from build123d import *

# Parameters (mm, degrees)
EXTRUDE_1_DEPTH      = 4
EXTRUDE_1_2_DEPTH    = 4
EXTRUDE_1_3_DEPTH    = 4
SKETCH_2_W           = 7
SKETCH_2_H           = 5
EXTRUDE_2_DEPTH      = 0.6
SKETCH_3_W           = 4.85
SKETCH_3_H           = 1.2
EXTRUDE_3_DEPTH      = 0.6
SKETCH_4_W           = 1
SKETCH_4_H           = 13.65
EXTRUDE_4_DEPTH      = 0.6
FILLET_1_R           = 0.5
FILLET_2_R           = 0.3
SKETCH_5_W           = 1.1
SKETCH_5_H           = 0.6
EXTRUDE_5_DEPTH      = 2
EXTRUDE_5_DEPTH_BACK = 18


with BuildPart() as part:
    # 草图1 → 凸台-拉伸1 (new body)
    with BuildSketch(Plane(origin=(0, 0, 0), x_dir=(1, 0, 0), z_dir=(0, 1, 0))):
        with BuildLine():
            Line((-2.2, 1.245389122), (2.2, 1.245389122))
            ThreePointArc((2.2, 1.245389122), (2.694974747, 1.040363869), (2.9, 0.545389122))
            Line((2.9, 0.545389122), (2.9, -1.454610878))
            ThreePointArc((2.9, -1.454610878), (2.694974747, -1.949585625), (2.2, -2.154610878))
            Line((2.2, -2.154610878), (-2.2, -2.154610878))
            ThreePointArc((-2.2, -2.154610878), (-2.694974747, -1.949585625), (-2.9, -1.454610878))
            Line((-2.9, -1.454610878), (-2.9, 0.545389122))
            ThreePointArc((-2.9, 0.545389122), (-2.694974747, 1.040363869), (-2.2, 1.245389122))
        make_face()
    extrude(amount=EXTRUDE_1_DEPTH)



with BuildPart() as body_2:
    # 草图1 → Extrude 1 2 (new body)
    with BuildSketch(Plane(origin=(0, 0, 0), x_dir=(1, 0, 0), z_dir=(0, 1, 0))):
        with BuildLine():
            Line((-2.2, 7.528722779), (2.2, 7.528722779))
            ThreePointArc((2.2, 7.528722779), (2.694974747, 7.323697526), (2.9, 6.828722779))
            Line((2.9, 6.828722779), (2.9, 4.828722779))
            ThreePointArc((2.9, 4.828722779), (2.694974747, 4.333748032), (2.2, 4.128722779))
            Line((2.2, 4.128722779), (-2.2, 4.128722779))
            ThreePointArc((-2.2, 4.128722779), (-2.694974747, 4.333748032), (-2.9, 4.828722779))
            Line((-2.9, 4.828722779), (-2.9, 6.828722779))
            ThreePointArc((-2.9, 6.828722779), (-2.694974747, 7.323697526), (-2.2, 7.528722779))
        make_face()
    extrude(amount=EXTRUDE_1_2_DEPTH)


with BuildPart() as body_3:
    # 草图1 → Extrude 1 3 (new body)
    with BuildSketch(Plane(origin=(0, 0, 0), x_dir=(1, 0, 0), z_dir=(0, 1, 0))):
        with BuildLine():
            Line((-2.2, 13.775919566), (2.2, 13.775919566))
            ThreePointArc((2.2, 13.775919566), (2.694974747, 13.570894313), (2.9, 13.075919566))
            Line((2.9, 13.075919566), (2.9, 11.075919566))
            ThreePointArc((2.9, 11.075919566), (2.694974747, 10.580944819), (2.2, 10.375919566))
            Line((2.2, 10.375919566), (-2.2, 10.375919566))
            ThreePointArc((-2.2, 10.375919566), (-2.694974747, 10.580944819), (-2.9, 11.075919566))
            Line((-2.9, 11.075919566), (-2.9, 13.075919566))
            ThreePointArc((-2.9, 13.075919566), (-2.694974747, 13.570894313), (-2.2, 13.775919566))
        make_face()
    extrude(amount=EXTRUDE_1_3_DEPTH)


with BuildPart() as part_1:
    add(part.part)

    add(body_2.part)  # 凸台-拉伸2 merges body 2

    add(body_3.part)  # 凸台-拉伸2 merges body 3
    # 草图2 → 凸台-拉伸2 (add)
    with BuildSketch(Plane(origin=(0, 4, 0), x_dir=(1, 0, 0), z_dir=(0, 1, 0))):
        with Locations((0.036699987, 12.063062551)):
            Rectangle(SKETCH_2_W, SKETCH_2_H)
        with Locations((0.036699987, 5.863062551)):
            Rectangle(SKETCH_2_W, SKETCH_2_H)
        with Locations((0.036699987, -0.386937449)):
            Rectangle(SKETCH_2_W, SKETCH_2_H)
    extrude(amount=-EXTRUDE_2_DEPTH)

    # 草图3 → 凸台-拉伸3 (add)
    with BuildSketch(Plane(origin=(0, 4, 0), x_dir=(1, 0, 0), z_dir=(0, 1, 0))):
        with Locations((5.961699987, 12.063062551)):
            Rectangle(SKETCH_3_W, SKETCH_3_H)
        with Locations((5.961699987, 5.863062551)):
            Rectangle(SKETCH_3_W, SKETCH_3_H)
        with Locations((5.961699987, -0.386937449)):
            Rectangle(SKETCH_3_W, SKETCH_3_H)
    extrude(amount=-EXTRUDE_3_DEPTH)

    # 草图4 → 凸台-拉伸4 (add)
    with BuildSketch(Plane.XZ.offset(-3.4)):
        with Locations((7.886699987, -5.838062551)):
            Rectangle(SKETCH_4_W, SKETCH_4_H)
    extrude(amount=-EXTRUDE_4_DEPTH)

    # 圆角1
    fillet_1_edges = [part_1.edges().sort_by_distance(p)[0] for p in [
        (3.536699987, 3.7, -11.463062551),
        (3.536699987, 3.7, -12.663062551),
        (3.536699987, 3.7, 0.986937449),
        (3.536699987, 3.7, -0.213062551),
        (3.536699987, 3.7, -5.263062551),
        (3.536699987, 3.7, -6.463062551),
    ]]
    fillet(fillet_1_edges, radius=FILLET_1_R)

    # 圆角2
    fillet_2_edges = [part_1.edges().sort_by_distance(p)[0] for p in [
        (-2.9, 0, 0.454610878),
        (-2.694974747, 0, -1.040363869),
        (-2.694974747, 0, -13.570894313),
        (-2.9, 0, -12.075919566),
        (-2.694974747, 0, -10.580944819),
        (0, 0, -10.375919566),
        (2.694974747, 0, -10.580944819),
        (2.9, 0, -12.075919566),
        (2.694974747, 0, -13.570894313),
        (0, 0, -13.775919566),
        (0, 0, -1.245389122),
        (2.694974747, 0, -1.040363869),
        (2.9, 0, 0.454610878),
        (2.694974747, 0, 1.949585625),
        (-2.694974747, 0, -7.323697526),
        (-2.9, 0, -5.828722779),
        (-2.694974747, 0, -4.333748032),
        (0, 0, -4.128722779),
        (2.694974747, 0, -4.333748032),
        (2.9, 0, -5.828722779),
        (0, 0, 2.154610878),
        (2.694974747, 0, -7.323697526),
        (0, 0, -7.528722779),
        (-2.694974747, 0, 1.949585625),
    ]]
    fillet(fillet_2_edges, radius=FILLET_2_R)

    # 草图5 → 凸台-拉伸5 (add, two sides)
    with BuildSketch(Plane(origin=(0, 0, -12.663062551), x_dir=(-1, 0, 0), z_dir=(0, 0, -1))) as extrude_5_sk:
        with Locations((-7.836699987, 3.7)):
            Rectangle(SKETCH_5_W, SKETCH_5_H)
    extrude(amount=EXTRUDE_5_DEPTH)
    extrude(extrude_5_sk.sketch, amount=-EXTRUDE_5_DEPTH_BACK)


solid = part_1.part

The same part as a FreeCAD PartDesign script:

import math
import FreeCAD as App
import Part
import Sketcher

V = App.Vector


def edges_at(feature, points):
    """Names of the edges that pass closest to the given points."""
    edges = feature.Shape.Edges
    near = lambda p: min(range(len(edges)), key=lambda i: edges[i].distToShape(Part.Vertex(*p))[0])
    return sorted({f"Edge{near(p) + 1}" for p in points})


def add_polygon(sketch, points):
    """Adds a closed chain of lines whose ends are joined by coincident constraints."""
    first, n = sketch.GeometryCount, len(points)
    for a, b in zip(points, points[1:] + points[:1]):
        sketch.addGeometry(Part.LineSegment(App.Vector(*a, 0), App.Vector(*b, 0)), False)
    for i in range(n):
        sketch.addConstraint(Sketcher.Constraint("Coincident", first + i, 2, first + (i + 1) % n, 1))

doc = App.newDocument("Part")
body = doc.addObject("PartDesign::Body", "Body")

# Sketch on XZ plane
sketch1 = body.newObject("Sketcher::SketchObject", "Sketch")
sketch1.AttachmentSupport = (doc.getObject("XZ_Plane"), [""])
sketch1.MapMode = "FlatFace"
sketch1.addGeometry([
    Part.LineSegment(V(2.2, -1.2, 0), V(-2.2, -1.2, 0)),  # 0
    Part.ArcOfCircle(Part.Circle(V(-2.2, -0.5, 0), V(0, 0, 1), 0.7), math.radians(180), math.radians(270)),  # 1
    Part.LineSegment(V(-2.9, -0.5, 0), V(-2.9, 1.5, 0)),  # 2
    Part.ArcOfCircle(Part.Circle(V(-2.2, 1.5, 0), V(0, 0, 1), 0.7), math.radians(90), math.radians(180)),  # 3
    Part.LineSegment(V(-2.2, 2.2, 0), V(2.2, 2.2, 0)),  # 4
    Part.ArcOfCircle(Part.Circle(V(2.2, 1.5, 0), V(0, 0, 1), 0.7), math.radians(0), math.radians(90)),  # 5
    Part.LineSegment(V(2.9, 1.5, 0), V(2.9, -0.5, 0)),  # 6
    Part.ArcOfCircle(Part.Circle(V(2.2, -0.5, 0), V(0, 0, 1), 0.7), math.radians(-90), math.radians(0)),  # 7
], False)
sketch1.addConstraint([
    Sketcher.Constraint("Tangent", 0, 2, 1, 2),
    Sketcher.Constraint("Tangent", 1, 1, 2, 1),
    Sketcher.Constraint("Tangent", 2, 2, 3, 2),
    Sketcher.Constraint("Tangent", 3, 1, 4, 1),
    Sketcher.Constraint("Tangent", 4, 2, 5, 2),
    Sketcher.Constraint("Tangent", 5, 1, 6, 1),
    Sketcher.Constraint("Tangent", 6, 2, 7, 2),
    Sketcher.Constraint("Tangent", 7, 1, 0, 1),
    Sketcher.Constraint("Horizontal", 0),
    Sketcher.Constraint("Vertical", 2),
    Sketcher.Constraint("Horizontal", 4),
    Sketcher.Constraint("Vertical", 6),
    Sketcher.Constraint("Equal", 1, 3),
    Sketcher.Constraint("Equal", 3, 5),
    Sketcher.Constraint("Equal", 5, 7),
    Sketcher.Constraint("Radius", 1, 0.7),
    Sketcher.Constraint("DistanceY", 2, 1, 2, 2, 2.0),
    Sketcher.Constraint("DistanceX", 0, 2, 0, 1, 4.4),
    Sketcher.Constraint("DistanceX", 1, 3, -1, 1, 2.2),
    Sketcher.Constraint("DistanceY", 1, 3, -1, 1, 0.545389),
])
pad1 = body.newObject("PartDesign::Pad", "Pad")
pad1.Profile = sketch1
pad1.Length = 4
pad1.Reversed = True
body2 = doc.addObject("PartDesign::Body", "Body001")

# Sketch on XZ plane
sketch2 = body2.newObject("Sketcher::SketchObject", "Sketch001")
sketch2.AttachmentSupport = (doc.getObject("XZ_Plane001"), [""])
sketch2.MapMode = "FlatFace"
sketch2.addGeometry([
    Part.LineSegment(V(2.2, -7.5, 0), V(-2.2, -7.5, 0)),  # 0
    Part.ArcOfCircle(Part.Circle(V(-2.2, -6.8, 0), V(0, 0, 1), 0.7), math.radians(180), math.radians(270)),  # 1
    Part.LineSegment(V(-2.9, -6.8, 0), V(-2.9, -4.8, 0)),  # 2
    Part.ArcOfCircle(Part.Circle(V(-2.2, -4.8, 0), V(0, 0, 1), 0.7), math.radians(90), math.radians(180)),  # 3
    Part.LineSegment(V(-2.2, -4.1, 0), V(2.2, -4.1, 0)),  # 4
    Part.ArcOfCircle(Part.Circle(V(2.2, -4.8, 0), V(0, 0, 1), 0.7), math.radians(0), math.radians(90)),  # 5
    Part.LineSegment(V(2.9, -4.8, 0), V(2.9, -6.8, 0)),  # 6
    Part.ArcOfCircle(Part.Circle(V(2.2, -6.8, 0), V(0, 0, 1), 0.7), math.radians(-90), math.radians(0)),  # 7
], False)
sketch2.addConstraint([
    Sketcher.Constraint("Tangent", 0, 2, 1, 2),
    Sketcher.Constraint("Tangent", 1, 1, 2, 1),
    Sketcher.Constraint("Tangent", 2, 2, 3, 2),
    Sketcher.Constraint("Tangent", 3, 1, 4, 1),
    Sketcher.Constraint("Tangent", 4, 2, 5, 2),
    Sketcher.Constraint("Tangent", 5, 1, 6, 1),
    Sketcher.Constraint("Tangent", 6, 2, 7, 2),
    Sketcher.Constraint("Tangent", 7, 1, 0, 1),
    Sketcher.Constraint("Horizontal", 0),
    Sketcher.Constraint("Vertical", 2),
    Sketcher.Constraint("Horizontal", 4),
    Sketcher.Constraint("Vertical", 6),
    Sketcher.Constraint("Equal", 1, 3),
    Sketcher.Constraint("Equal", 3, 5),
    Sketcher.Constraint("Equal", 5, 7),
    Sketcher.Constraint("Radius", 1, 0.7),
    Sketcher.Constraint("DistanceY", 2, 1, 2, 2, 2.0),
    Sketcher.Constraint("DistanceX", 0, 2, 0, 1, 4.4),
    Sketcher.Constraint("DistanceX", 1, 3, -1, 1, 2.2),
    Sketcher.Constraint("DistanceY", 1, 3, -1, 1, 6.828723),
])
pad2 = body2.newObject("PartDesign::Pad", "Pad001")
pad2.Profile = sketch2
pad2.Length = 4
pad2.Reversed = True
body3 = doc.addObject("PartDesign::Body", "Body002")

# Sketch on XZ plane
sketch3 = body3.newObject("Sketcher::SketchObject", "Sketch002")
sketch3.AttachmentSupport = (doc.getObject("XZ_Plane002"), [""])
sketch3.MapMode = "FlatFace"
sketch3.addGeometry([
    Part.LineSegment(V(2.2, -13.8, 0), V(-2.2, -13.8, 0)),  # 0
    Part.ArcOfCircle(Part.Circle(V(-2.2, -13.1, 0), V(0, 0, 1), 0.7), math.radians(180), math.radians(270)),  # 1
    Part.LineSegment(V(-2.9, -13.1, 0), V(-2.9, -11.1, 0)),  # 2
    Part.ArcOfCircle(Part.Circle(V(-2.2, -11.1, 0), V(0, 0, 1), 0.7), math.radians(90), math.radians(180)),  # 3
    Part.LineSegment(V(-2.2, -10.4, 0), V(2.2, -10.4, 0)),  # 4
    Part.ArcOfCircle(Part.Circle(V(2.2, -11.1, 0), V(0, 0, 1), 0.7), math.radians(0), math.radians(90)),  # 5
    Part.LineSegment(V(2.9, -11.1, 0), V(2.9, -13.1, 0)),  # 6
    Part.ArcOfCircle(Part.Circle(V(2.2, -13.1, 0), V(0, 0, 1), 0.7), math.radians(-90), math.radians(0)),  # 7
], False)
sketch3.addConstraint([
    Sketcher.Constraint("Tangent", 0, 2, 1, 2),
    Sketcher.Constraint("Tangent", 1, 1, 2, 1),
    Sketcher.Constraint("Tangent", 2, 2, 3, 2),
    Sketcher.Constraint("Tangent", 3, 1, 4, 1),
    Sketcher.Constraint("Tangent", 4, 2, 5, 2),
    Sketcher.Constraint("Tangent", 5, 1, 6, 1),
    Sketcher.Constraint("Tangent", 6, 2, 7, 2),
    Sketcher.Constraint("Tangent", 7, 1, 0, 1),
    Sketcher.Constraint("Horizontal", 0),
    Sketcher.Constraint("Vertical", 2),
    Sketcher.Constraint("Horizontal", 4),
    Sketcher.Constraint("Vertical", 6),
    Sketcher.Constraint("Equal", 1, 3),
    Sketcher.Constraint("Equal", 3, 5),
    Sketcher.Constraint("Equal", 5, 7),
    Sketcher.Constraint("Radius", 1, 0.7),
    Sketcher.Constraint("DistanceY", 2, 1, 2, 2, 2.0),
    Sketcher.Constraint("DistanceX", 0, 2, 0, 1, 4.4),
    Sketcher.Constraint("DistanceX", 1, 3, -1, 1, 2.2),
    Sketcher.Constraint("DistanceY", 1, 3, -1, 1, 13.07592),
])
pad3 = body3.newObject("PartDesign::Pad", "Pad002")
pad3.Profile = sketch3
pad3.Length = 4
pad3.Reversed = True
body.AllowCompound = True
doc.recompute()

boolean = body.newObject("PartDesign::Boolean", "Boolean")
boolean.Type = "Fuse"
boolean.addObjects([body2])
doc.recompute()

boolean2 = body.newObject("PartDesign::Boolean", "Boolean001")
boolean2.Type = "Fuse"
boolean2.addObjects([body3])

# Sketch on XZ plane
sketch4 = body.newObject("Sketcher::SketchObject", "Sketch003")
sketch4.AttachmentSupport = (doc.getObject("XZ_Plane"), [""])
sketch4.MapMode = "FlatFace"
sketch4.AttachmentOffset = App.Placement(V(0, 0, -4), App.Rotation())
add_polygon(sketch4, [(-3, -15), (-3, -10), (4, -10), (4, -15)])  # lines 0-3
add_polygon(sketch4, [(-3, -8), (-3, -3), (4, -3), (4, -8)])  # lines 4-7
add_polygon(sketch4, [(-3, -2), (-3, 3), (4, 3), (4, -2)])  # lines 8-11
sketch4.addConstraint([
    Sketcher.Constraint("Vertical", 0),
    Sketcher.Constraint("Horizontal", 1),
    Sketcher.Constraint("Vertical", 2),
    Sketcher.Constraint("Horizontal", 3),
    Sketcher.Constraint("Vertical", 4),
    Sketcher.Constraint("Horizontal", 5),
    Sketcher.Constraint("Vertical", 6),
    Sketcher.Constraint("Horizontal", 7),
    Sketcher.Constraint("Vertical", 8),
    Sketcher.Constraint("Horizontal", 9),
    Sketcher.Constraint("Vertical", 10),
    Sketcher.Constraint("Horizontal", 11),
    Sketcher.Constraint("Vertical", 3, 2, 4, 2),
    Sketcher.Constraint("Vertical", 2, 2, 5, 2),
    Sketcher.Constraint("Vertical", 7, 2, 8, 2),
    Sketcher.Constraint("Vertical", 6, 2, 9, 2),
    Sketcher.Constraint("Equal", 2, 4),
    Sketcher.Constraint("Equal", 6, 8),
    Sketcher.Constraint("DistanceX", 1, 1, 1, 2, 7.0),
    Sketcher.Constraint("DistanceY", 0, 1, 0, 2, 5.0),
    Sketcher.Constraint("DistanceY", 0, 2, 4, 2, 6.2),
    Sketcher.Constraint("DistanceY", 4, 2, 8, 2, 6.25),
    Sketcher.Constraint("DistanceX", 0, 2, -1, 1, 3.4633),
    Sketcher.Constraint("DistanceY", 0, 2, -1, 1, 9.563063),
])
pad4 = body.newObject("PartDesign::Pad", "Pad003")
pad4.Profile = sketch4
pad4.Length = 0.6

# Sketch on XZ plane
sketch5 = body.newObject("Sketcher::SketchObject", "Sketch004")
sketch5.AttachmentSupport = (doc.getObject("XZ_Plane"), [""])
sketch5.MapMode = "FlatFace"
sketch5.AttachmentOffset = App.Placement(V(0, 0, -4), App.Rotation())
add_polygon(sketch5, [(3.5, -12.7), (3.5, -11.5), (8.4, -11.5), (8.4, -12.7)])  # lines 0-3
add_polygon(sketch5, [(3.5, -6.5), (3.5, -5.3), (8.4, -5.3), (8.4, -6.5)])  # lines 4-7
add_polygon(sketch5, [(3.5, -0.2), (3.5, 1), (8.4, 1), (8.4, -0.2)])  # lines 8-11
sketch5.addConstraint([
    Sketcher.Constraint("Vertical", 0),
    Sketcher.Constraint("Horizontal", 1),
    Sketcher.Constraint("Vertical", 2),
    Sketcher.Constraint("Horizontal", 3),
    Sketcher.Constraint("Vertical", 4),
    Sketcher.Constraint("Horizontal", 5),
    Sketcher.Constraint("Vertical", 6),
    Sketcher.Constraint("Horizontal", 7),
    Sketcher.Constraint("Vertical", 8),
    Sketcher.Constraint("Horizontal", 9),
    Sketcher.Constraint("Vertical", 10),
    Sketcher.Constraint("Horizontal", 11),
    Sketcher.Constraint("Vertical", 3, 2, 4, 2),
    Sketcher.Constraint("Vertical", 2, 2, 5, 2),
    Sketcher.Constraint("Vertical", 7, 2, 8, 2),
    Sketcher.Constraint("Vertical", 6, 2, 9, 2),
    Sketcher.Constraint("Equal", 2, 4),
    Sketcher.Constraint("Equal", 6, 8),
    Sketcher.Constraint("DistanceY", 0, 1, 0, 2, 1.2),
    Sketcher.Constraint("DistanceY", 1, 2, 6, 2, 5.0),
    Sketcher.Constraint("DistanceX", 1, 1, 1, 2, 4.85),
    Sketcher.Constraint("DistanceY", 4, 2, 8, 2, 6.25),
    Sketcher.Constraint("DistanceX", -1, 1, 0, 2, 3.5367),
    Sketcher.Constraint("DistanceY", 0, 2, -1, 1, 11.463063),
])
pad5 = body.newObject("PartDesign::Pad", "Pad004")
pad5.Profile = sketch5
pad5.Length = 0.6

# Sketch on XZ plane
sketch6 = body.newObject("Sketcher::SketchObject", "Sketch005")
sketch6.AttachmentSupport = (doc.getObject("XZ_Plane"), [""])
sketch6.MapMode = "FlatFace"
sketch6.AttachmentOffset = App.Placement(V(0, 0, -3.4), App.Rotation())
add_polygon(sketch6, [(7.4, 1), (7.4, -12.7), (8.4, -12.7), (8.4, 1)])  # lines 0-3
sketch6.addConstraint([
    Sketcher.Constraint("Vertical", 0),
    Sketcher.Constraint("Horizontal", 1),
    Sketcher.Constraint("Vertical", 2),
    Sketcher.Constraint("Horizontal", 3),
    Sketcher.Constraint("DistanceX", 1, 1, 1, 2, 1.0),
    Sketcher.Constraint("DistanceY", 0, 2, 0, 1, 13.65),
    Sketcher.Constraint("DistanceX", -1, 1, 0, 2, 7.3867),
    Sketcher.Constraint("DistanceY", 0, 2, -1, 1, 12.663063),
])
pad6 = body.newObject("PartDesign::Pad", "Pad005")
pad6.Profile = sketch6
pad6.Length = 0.6
pad6.Reversed = True
doc.recompute()

fillet = body.newObject("PartDesign::Fillet", "Fillet")
fillet.Base = (pad6, edges_at(pad6, [
    (3.537, 3.7, -11.463),
    (3.537, 3.7, -12.663),
    (3.537, 3.7, 0.987),
    (3.537, 3.7, -0.213),
    (3.537, 3.7, -5.263),
    (3.537, 3.7, -6.463),
]))
fillet.Radius = 0.5
doc.recompute()

fillet2 = body.newObject("PartDesign::Fillet", "Fillet001")
fillet2.Base = (fillet, edges_at(fillet, [
    (-2.9, 0, 0.455),
    (-2.695, 0, -1.04),
    (-2.695, 0, -13.571),
    (-2.9, 0, -12.076),
    (-2.695, 0, -10.581),
    (0, 0, -10.376),
    (2.695, 0, -10.581),
    (2.9, 0, -12.076),
    (2.695, 0, -13.571),
    (0, 0, -13.776),
    (0, 0, -1.245),
    (2.695, 0, -1.04),
    (2.9, 0, 0.455),
    (2.695, 0, 1.95),
    (-2.695, 0, -7.324),
    (-2.9, 0, -5.829),
    (-2.695, 0, -4.334),
    (0, 0, -4.129),
    (2.695, 0, -4.334),
    (2.9, 0, -5.829),
    (0, 0, 2.155),
    (2.695, 0, -7.324),
    (0, 0, -7.529),
    (-2.695, 0, 1.95),
]))
fillet2.Radius = 0.3

# Sketch on XY plane
sketch7 = body.newObject("Sketcher::SketchObject", "Sketch006")
sketch7.AttachmentSupport = (doc.getObject("XY_Plane"), [""])
sketch7.MapMode = "FlatFace"
sketch7.AttachmentOffset = App.Placement(V(0, 0, -12.663063), App.Rotation())
add_polygon(sketch7, [(8.4, 4), (8.4, 3.4), (7.3, 3.4), (7.3, 4)])  # lines 0-3
sketch7.addConstraint([
    Sketcher.Constraint("Vertical", 0),
    Sketcher.Constraint("Horizontal", 1),
    Sketcher.Constraint("Vertical", 2),
    Sketcher.Constraint("Horizontal", 3),
    Sketcher.Constraint("DistanceX", 1, 2, 1, 1, 1.1),
    Sketcher.Constraint("DistanceY", 0, 2, 0, 1, 0.6),
    Sketcher.Constraint("DistanceY", -1, 1, 2, 2, 4.0),
    Sketcher.Constraint("DistanceX", -1, 1, 0, 2, 8.3867),
])
pad7 = body.newObject("PartDesign::Pad", "Pad006")
pad7.Profile = sketch7
pad7.Type = "TwoLengths"
pad7.Length = 2
pad7.Length2 = 18
pad7.Reversed = True

doc.recompute()
